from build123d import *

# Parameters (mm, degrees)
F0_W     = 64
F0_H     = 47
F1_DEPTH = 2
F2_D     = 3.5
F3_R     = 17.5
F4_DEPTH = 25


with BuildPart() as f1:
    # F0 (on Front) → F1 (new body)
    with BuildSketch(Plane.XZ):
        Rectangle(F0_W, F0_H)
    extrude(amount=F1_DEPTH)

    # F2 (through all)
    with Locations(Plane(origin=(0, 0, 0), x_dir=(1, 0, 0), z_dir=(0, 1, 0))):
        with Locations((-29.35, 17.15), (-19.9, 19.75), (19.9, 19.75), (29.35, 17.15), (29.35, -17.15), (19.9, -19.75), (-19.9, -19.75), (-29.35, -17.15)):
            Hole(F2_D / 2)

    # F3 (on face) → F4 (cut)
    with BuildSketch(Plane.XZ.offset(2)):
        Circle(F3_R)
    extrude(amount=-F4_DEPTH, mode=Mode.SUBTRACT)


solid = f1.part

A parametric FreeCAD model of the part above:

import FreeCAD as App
import Part
import Sketcher
from FreeCAD import Vector
Q = App.Units.Quantity

doc = App.newDocument("Part")
params = doc.addObject("Spreadsheet::Sheet", "Params")
for row, (alias, value) in enumerate([
    ("sketch1_width", "64 mm"),
    ("sketch1_height", "47 mm"),
    ("pad1_length", "2 mm"),
    ("sketch2_diameter", "3.5 mm"),
    ("hole_diameter", "3.5 mm"),
    ("sketch3_diameter", "35 mm"),
    ("pocket1_length", "25 mm"),
], start=1):
    params.set(f"A{row}", alias)
    params.set(f"B{row}", "=" + value)
    params.setAlias(f"B{row}", alias)

body = doc.addObject("PartDesign::Body", "Body")

# Sketch on XZ plane
sketch1 = body.newObject("Sketcher::SketchObject", "Sketch")
sketch1.AttachmentSupport = (doc.getObject("XZ_Plane"), [""])
sketch1.MapMode = "FlatFace"
sketch1.addGeometry([
    Part.LineSegment(Vector(-32, 24, 0), Vector(-32, -24, 0)),
    Part.LineSegment(Vector(-32, -24, 0), Vector(32, -24, 0)),
    Part.LineSegment(Vector(32, -24, 0), Vector(32, 24, 0)),
    Part.LineSegment(Vector(32, 24, 0), Vector(-32, 24, 0)),
], False)
sketch1.addConstraint([
    Sketcher.Constraint("Coincident", 0, 2, 1, 1),
    Sketcher.Constraint("Coincident", 1, 2, 2, 1),
    Sketcher.Constraint("Coincident", 2, 2, 3, 1),
    Sketcher.Constraint("Coincident", 3, 2, 0, 1),
    Sketcher.Constraint("Vertical", 0),
    Sketcher.Constraint("Horizontal", 1),
    Sketcher.Constraint("Vertical", 2),
    Sketcher.Constraint("Horizontal", 3),
    Sketcher.Constraint("Symmetric", 0, 2, 2, 2, -1, 1),
    Sketcher.Constraint("DistanceX", 1, 1, 1, 2, Q("64 mm")),
    Sketcher.Constraint("DistanceY", 0, 2, 0, 1, Q("47 mm")),
])
sketch1.setExpression("Constraints[9]", "Params.sketch1_width")
sketch1.setExpression("Constraints[10]", "Params.sketch1_height")
pad1 = body.newObject("PartDesign::Pad", "Pad")
pad1.Profile = sketch1
pad1.setExpression("Length", "Params.pad1_length")

# Sketch on XZ plane
sketch2 = body.newObject("Sketcher::SketchObject", "Sketch001")
sketch2.AttachmentSupport = (doc.getObject("XZ_Plane"), [""])
sketch2.MapMode = "FlatFace"
sketch2.addGeometry([
    Part.Circle(Vector(-29.4, -17.1, 0), Vector(0, 0, 1), 1.8),  # 0
    Part.Circle(Vector(-19.9, -19.8, 0), Vector(0, 0, 1), 1.8),  # 1
    Part.Circle(Vector(19.9, -19.8, 0), Vector(0, 0, 1), 1.8),  # 2
    Part.Circle(Vector(29.4, -17.1, 0), Vector(0, 0, 1), 1.8),  # 3
    Part.Circle(Vector(29.4, 17.1, 0), Vector(0, 0, 1), 1.8),  # 4
    Part.Circle(Vector(19.9, 19.8, 0), Vector(0, 0, 1), 1.8),  # 5
    Part.Circle(Vector(-19.9, 19.8, 0), Vector(0, 0, 1), 1.8),  # 6
    Part.Circle(Vector(-29.4, 17.1, 0), Vector(0, 0, 1), 1.8),  # 7
], False)
sketch2.addConstraint([
    Sketcher.Constraint("Equal", 0, 1),
    Sketcher.Constraint("Equal", 1, 2),
    Sketcher.Constraint("Equal", 2, 3),
    Sketcher.Constraint("Equal", 3, 4),
    Sketcher.Constraint("Equal", 4, 5),
    Sketcher.Constraint("Equal", 5, 6),
    Sketcher.Constraint("Equal", 6, 7),
    Sketcher.Constraint("Symmetric", 0, 3, 4, 3, -1, 1),
    Sketcher.Constraint("Symmetric", 1, 3, 5, 3, -1, 1),
    Sketcher.Constraint("Symmetric", 2, 3, 6, 3, -1, 1),
    Sketcher.Constraint("Symmetric", 3, 3, 7, 3, -1, 1),
    Sketcher.Constraint("Symmetric", 1, 3, 2, 3, -2),
    Sketcher.Constraint("Symmetric", 0, 3, 3, 3, -2),
    Sketcher.Constraint("Diameter", 0, Q("3.5 mm")),
    Sketcher.Constraint("DistanceX", 1, 3, -1, 1, Q("19.9 mm")),
    Sketcher.Constraint("DistanceY", 1, 3, 0, 3, Q("2.6 mm")),
    Sketcher.Constraint("DistanceX", 0, 3, 3, 3, Q("58.7 mm")),
    Sketcher.Constraint("DistanceY", 3, 3, 4, 3, Q("34.3 mm")),
])
sketch2.setExpression("Constraints[13]", "Params.sketch2_diameter")
doc.recompute()
hole = body.newObject("PartDesign::Hole", "Hole")
hole.Profile = sketch2
hole.ThreadType = "None"
hole.setExpression("Diameter", "Params.hole_diameter")
hole.DepthType = "ThroughAll"
hole.Reversed = True

# Sketch on XZ plane
sketch3 = body.newObject("Sketcher::SketchObject", "Sketch002")
sketch3.AttachmentSupport = (doc.getObject("XZ_Plane"), [""])
sketch3.MapMode = "FlatFace"
sketch3.AttachmentOffset = App.Placement(Vector(0, 0, 2), App.Rotation())
sketch3.addGeometry(Part.Circle(Vector(0, 0, 0), Vector(0, 0, 1), 18), False)
sketch3.addConstraint([
    Sketcher.Constraint("Coincident", 0, 3, -1, 1),
    Sketcher.Constraint("Diameter", 0, Q("35 mm")),
])
sketch3.setExpression("Constraints[1]", "Params.sketch3_diameter")
pocket1 = body.newObject("PartDesign::Pocket", "Pocket")
pocket1.Profile = sketch3
pocket1.setExpression("Length", "Params.pocket1_length")

doc.recompute()
